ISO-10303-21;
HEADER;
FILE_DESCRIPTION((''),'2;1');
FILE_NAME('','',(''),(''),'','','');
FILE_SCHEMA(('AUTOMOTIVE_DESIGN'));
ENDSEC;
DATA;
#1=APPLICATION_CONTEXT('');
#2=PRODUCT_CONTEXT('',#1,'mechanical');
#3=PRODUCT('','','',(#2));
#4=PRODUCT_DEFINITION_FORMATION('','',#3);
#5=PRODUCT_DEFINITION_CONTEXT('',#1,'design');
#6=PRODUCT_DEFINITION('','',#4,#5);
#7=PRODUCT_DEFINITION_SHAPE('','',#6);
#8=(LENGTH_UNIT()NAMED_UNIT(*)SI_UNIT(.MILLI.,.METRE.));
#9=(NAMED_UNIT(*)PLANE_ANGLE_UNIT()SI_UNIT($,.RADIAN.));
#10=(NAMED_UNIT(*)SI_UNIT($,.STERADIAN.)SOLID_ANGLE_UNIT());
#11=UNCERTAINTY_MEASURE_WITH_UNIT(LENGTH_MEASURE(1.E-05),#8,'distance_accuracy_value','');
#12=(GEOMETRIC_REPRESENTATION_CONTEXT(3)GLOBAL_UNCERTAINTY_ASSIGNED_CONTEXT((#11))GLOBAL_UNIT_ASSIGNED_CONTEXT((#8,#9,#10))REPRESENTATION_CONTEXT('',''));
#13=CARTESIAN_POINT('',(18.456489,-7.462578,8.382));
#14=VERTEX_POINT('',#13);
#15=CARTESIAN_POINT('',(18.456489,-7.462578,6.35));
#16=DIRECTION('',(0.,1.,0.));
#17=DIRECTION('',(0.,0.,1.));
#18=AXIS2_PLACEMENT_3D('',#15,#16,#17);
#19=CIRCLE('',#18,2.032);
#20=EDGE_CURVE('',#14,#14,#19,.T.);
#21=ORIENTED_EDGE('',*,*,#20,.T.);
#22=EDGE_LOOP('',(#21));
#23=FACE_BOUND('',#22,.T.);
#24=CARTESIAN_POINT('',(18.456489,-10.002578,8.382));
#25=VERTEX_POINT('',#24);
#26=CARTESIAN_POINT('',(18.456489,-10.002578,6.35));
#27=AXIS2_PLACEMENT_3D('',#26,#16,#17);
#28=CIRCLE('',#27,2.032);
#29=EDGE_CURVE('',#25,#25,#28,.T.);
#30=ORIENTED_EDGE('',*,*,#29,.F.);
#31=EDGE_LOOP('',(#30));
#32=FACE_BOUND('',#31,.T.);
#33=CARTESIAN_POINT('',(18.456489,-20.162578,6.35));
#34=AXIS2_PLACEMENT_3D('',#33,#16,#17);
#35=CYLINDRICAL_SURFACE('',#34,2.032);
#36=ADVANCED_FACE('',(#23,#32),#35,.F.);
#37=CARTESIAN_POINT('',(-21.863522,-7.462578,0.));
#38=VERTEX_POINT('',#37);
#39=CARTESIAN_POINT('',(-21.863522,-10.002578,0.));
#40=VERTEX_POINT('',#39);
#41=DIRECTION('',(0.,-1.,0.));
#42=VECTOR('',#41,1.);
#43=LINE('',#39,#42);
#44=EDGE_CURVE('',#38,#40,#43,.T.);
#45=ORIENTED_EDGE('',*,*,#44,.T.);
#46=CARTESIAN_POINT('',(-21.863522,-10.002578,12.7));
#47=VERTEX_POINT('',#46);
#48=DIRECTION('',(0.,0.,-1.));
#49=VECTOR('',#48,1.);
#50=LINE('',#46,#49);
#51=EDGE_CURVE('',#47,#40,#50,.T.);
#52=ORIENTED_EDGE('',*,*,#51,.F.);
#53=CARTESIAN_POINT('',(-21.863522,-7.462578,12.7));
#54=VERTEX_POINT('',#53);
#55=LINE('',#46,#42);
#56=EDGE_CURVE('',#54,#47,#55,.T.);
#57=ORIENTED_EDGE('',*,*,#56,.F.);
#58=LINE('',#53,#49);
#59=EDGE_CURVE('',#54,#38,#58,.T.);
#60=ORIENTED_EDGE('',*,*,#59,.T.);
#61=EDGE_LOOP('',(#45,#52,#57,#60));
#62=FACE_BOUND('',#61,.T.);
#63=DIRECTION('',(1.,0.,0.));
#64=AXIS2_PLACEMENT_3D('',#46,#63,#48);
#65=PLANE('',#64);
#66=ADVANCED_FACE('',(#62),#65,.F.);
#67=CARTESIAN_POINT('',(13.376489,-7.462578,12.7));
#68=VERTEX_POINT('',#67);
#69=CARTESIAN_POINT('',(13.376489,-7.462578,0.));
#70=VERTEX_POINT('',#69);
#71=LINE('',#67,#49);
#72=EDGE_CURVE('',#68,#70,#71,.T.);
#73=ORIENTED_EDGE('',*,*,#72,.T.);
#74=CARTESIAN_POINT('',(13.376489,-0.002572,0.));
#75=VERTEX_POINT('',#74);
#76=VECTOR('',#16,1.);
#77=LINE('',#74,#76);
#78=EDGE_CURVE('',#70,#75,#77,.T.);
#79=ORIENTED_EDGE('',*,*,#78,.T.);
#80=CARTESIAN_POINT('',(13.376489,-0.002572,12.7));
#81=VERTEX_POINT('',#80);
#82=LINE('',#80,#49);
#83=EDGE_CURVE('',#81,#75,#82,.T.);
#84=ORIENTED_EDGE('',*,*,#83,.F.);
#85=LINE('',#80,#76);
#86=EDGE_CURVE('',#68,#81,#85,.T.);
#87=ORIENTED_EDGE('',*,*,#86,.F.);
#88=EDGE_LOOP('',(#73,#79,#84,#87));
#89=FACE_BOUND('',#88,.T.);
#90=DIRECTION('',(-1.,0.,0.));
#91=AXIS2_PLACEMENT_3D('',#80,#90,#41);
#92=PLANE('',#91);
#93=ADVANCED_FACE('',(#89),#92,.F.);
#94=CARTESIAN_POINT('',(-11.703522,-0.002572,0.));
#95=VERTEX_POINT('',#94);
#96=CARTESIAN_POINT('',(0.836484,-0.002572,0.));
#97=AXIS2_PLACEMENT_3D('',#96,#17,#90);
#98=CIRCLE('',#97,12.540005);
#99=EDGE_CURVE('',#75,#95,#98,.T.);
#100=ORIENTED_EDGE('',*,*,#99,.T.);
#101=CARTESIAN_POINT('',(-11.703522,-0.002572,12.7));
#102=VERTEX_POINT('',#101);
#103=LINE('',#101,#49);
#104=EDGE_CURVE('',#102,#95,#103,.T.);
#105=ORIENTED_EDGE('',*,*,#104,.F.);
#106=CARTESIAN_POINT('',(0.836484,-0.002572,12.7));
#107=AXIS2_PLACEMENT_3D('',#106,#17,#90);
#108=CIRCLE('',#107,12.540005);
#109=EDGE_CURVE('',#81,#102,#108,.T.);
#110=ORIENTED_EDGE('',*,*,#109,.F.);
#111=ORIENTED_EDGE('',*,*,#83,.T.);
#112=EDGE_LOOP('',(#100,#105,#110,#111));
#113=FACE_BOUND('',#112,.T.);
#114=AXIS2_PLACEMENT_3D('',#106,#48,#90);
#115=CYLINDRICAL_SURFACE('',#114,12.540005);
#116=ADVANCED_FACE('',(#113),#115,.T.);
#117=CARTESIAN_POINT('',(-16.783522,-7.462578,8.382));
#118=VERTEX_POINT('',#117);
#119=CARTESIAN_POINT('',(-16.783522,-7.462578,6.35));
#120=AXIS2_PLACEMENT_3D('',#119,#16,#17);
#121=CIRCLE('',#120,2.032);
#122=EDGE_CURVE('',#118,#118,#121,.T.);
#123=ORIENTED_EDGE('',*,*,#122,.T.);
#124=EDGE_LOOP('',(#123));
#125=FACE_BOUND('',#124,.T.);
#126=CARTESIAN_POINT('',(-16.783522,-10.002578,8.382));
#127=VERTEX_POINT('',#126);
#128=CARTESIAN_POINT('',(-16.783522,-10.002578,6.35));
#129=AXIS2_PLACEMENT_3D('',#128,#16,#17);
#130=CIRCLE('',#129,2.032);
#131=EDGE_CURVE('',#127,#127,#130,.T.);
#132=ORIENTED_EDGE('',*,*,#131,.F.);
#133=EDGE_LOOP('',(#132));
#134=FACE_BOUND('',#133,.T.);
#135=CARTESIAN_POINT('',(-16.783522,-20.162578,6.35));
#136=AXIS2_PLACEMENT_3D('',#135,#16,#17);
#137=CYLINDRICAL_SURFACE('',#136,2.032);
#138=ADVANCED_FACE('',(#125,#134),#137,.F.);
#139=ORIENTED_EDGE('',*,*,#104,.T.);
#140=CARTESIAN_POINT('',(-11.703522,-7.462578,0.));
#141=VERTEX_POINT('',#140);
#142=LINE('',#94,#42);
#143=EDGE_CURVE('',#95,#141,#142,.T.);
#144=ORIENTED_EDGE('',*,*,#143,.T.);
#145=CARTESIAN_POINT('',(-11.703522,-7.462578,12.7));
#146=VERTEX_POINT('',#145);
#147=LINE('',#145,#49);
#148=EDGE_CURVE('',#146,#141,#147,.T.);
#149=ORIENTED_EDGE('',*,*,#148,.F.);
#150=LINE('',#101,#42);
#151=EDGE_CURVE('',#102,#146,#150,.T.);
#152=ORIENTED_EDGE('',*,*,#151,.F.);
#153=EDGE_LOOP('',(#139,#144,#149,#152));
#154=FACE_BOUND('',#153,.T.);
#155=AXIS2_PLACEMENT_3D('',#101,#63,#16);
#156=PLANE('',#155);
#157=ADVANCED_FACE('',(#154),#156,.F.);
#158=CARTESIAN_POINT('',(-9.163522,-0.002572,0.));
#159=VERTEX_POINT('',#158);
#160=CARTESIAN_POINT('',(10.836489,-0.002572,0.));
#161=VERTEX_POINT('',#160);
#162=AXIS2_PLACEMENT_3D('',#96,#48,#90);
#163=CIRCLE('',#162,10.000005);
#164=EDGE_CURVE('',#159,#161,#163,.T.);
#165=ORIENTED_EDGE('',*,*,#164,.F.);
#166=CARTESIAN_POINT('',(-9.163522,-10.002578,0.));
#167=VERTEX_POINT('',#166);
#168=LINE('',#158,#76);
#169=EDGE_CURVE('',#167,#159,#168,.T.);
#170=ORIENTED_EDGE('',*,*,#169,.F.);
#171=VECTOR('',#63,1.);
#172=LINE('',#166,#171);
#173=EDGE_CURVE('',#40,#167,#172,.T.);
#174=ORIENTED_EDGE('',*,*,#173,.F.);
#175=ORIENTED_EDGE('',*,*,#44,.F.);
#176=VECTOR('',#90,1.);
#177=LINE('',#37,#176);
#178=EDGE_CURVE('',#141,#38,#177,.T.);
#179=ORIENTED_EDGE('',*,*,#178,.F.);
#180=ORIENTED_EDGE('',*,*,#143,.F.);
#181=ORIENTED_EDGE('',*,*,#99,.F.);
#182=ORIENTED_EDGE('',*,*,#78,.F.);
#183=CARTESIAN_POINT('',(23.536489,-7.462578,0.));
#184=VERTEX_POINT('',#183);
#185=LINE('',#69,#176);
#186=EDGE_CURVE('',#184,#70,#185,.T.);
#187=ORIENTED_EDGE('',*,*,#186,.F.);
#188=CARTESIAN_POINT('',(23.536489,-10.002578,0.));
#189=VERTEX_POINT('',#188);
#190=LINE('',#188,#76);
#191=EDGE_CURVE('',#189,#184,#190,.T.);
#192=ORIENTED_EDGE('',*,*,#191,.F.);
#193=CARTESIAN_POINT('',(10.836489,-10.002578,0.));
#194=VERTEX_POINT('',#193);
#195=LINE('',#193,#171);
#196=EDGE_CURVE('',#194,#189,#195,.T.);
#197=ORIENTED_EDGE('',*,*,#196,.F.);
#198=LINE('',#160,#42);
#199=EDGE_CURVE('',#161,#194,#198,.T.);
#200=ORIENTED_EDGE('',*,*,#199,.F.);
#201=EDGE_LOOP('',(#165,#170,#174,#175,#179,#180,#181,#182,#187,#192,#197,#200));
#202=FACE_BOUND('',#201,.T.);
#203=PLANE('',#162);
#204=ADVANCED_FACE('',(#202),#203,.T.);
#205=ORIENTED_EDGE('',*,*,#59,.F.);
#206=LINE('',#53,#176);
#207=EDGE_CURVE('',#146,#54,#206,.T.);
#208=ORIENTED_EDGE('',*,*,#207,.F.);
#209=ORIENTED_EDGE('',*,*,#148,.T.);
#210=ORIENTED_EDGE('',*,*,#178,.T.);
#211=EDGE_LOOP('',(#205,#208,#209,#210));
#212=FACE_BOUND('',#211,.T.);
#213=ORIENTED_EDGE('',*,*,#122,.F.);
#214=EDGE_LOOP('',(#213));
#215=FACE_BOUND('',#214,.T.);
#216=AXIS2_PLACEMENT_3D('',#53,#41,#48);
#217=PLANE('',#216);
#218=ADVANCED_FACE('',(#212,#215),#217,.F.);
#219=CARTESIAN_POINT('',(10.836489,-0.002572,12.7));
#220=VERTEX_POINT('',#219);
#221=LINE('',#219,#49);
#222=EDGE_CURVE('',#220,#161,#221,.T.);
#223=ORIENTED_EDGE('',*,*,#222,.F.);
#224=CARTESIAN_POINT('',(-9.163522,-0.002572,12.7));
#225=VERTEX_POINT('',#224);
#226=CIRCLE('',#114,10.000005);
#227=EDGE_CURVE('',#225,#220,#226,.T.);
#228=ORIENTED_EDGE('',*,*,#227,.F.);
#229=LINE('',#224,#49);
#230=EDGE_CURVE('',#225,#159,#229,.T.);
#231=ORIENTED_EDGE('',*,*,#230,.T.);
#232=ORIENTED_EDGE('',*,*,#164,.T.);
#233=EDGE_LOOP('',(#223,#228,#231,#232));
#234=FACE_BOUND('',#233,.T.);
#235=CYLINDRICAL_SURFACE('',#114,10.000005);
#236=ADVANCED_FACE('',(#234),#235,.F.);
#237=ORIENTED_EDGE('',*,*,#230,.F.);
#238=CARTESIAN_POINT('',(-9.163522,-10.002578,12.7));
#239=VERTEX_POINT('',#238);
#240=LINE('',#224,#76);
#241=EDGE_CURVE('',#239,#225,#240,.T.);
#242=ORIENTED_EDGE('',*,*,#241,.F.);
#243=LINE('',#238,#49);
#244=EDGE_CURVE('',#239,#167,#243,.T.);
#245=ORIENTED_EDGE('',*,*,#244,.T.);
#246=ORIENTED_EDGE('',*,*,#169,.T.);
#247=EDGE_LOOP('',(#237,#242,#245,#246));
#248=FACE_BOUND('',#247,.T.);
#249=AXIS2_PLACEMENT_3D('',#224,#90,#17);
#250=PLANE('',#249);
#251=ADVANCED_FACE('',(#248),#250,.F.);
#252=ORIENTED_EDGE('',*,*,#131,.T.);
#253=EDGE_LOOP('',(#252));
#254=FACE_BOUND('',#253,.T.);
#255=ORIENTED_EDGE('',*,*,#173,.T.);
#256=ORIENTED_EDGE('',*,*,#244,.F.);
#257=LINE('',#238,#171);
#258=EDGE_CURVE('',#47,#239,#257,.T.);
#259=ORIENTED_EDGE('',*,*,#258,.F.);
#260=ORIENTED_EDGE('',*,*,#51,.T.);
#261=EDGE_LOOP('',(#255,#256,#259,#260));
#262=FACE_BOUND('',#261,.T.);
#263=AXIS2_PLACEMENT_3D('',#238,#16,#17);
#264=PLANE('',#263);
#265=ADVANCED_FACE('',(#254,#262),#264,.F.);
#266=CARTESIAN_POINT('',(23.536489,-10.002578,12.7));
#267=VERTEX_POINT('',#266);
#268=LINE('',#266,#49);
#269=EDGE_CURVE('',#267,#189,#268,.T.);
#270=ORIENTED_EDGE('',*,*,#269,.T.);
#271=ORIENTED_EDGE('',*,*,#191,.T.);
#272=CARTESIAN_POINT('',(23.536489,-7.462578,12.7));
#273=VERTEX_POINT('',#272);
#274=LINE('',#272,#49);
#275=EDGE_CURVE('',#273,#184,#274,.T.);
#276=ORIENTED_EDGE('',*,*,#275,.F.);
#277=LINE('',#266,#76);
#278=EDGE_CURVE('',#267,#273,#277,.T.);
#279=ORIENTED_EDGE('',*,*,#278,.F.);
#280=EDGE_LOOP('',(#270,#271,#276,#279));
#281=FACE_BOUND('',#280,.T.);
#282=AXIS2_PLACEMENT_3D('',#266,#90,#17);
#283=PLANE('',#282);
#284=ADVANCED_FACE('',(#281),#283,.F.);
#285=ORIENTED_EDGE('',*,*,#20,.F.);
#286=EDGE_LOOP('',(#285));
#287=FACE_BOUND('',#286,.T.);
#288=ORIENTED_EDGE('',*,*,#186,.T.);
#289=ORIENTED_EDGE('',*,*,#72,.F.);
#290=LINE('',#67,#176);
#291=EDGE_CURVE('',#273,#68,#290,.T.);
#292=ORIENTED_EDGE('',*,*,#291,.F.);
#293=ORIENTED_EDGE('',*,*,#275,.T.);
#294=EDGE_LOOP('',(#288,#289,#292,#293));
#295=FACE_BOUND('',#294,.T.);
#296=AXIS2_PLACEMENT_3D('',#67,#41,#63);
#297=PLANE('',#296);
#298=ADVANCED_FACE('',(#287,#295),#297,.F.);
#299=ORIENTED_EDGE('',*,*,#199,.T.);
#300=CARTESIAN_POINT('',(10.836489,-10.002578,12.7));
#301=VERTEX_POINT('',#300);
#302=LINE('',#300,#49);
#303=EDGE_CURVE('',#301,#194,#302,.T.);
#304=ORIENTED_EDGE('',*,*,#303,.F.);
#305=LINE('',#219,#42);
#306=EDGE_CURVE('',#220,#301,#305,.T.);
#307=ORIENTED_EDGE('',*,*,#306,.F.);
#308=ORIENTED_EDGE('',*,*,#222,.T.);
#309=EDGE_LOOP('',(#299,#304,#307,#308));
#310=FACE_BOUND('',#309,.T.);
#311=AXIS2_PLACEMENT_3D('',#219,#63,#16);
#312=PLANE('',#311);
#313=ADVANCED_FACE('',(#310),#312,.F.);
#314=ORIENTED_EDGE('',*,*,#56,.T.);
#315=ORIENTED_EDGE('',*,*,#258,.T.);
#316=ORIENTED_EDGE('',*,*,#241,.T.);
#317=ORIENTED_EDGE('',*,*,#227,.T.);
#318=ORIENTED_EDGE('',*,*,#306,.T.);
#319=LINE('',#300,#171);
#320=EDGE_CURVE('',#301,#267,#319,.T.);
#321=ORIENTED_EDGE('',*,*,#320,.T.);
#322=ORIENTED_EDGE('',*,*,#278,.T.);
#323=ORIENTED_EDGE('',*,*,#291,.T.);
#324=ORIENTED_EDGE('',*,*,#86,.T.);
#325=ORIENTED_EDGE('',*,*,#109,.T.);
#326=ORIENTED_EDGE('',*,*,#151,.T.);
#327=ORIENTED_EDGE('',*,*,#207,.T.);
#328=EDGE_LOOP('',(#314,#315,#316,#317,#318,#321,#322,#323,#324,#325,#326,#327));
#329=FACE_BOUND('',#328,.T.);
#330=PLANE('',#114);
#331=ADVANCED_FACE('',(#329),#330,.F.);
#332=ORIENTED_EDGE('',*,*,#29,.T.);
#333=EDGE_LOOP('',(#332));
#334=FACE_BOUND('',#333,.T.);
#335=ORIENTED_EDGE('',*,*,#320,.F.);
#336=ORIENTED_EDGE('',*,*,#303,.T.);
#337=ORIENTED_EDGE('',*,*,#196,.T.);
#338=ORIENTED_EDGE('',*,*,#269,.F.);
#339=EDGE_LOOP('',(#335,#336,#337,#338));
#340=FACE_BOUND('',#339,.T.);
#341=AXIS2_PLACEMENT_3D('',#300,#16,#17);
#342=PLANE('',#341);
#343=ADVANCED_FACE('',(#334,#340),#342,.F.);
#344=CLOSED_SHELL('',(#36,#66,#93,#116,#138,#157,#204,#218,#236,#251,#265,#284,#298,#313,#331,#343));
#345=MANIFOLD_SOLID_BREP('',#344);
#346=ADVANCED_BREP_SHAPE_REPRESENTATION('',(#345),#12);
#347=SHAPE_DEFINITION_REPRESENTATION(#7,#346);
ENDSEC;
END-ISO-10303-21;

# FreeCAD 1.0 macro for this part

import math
import FreeCAD as App
import Part
import Sketcher
Q = App.Units.Quantity

doc = App.newDocument("Part")
body = doc.addObject("PartDesign::Body", "Body")

# Sketch on XY plane
sketch1 = body.newObject("Sketcher::SketchObject", "Sketch")
sketch1.AttachmentSupport = (doc.getObject("XY_Plane"), [""])
sketch1.MapMode = "FlatFace"
sketch1.addGeometry([
    Part.LineSegment(App.Vector(-9.163522, -10.002578, 0), App.Vector(-9.163522, -0.002572, 0)),  # 0
    Part.ArcOfCircle(Part.Circle(App.Vector(0.836484, -0.002572, 0), App.Vector(0, 0, 1), 10.000005), math.radians(0), math.radians(180)),  # 1
    Part.LineSegment(App.Vector(10.836489, -0.002572, 0), App.Vector(10.836489, -10.002578, 0)),  # 2
    Part.LineSegment(App.Vector(10.836489, -10.002578, 0), App.Vector(23.536489, -10.002578, 0)),  # 3
    Part.LineSegment(App.Vector(23.536489, -10.002578, 0), App.Vector(23.536489, -7.462578, 0)),  # 4
    Part.LineSegment(App.Vector(23.536489, -7.462578, 0), App.Vector(13.376489, -7.462578, 0)),  # 5
    Part.LineSegment(App.Vector(13.376489, -7.462578, 0), App.Vector(13.376489, -0.002572, 0)),  # 6
    Part.ArcOfCircle(Part.Circle(App.Vector(0.836484, -0.002572, 0), App.Vector(0, 0, 1), 12.540005), math.radians(0), math.radians(180)),  # 7
    Part.LineSegment(App.Vector(-11.703522, -0.002572, 0), App.Vector(-11.703522, -7.462578, 0)),  # 8
    Part.LineSegment(App.Vector(-11.703522, -7.462578, 0), App.Vector(-21.863522, -7.462578, 0)),  # 9
    Part.LineSegment(App.Vector(-21.863522, -7.462578, 0), App.Vector(-21.863522, -10.002578, 0)),  # 10
    Part.LineSegment(App.Vector(-21.863522, -10.002578, 0), App.Vector(-9.163522, -10.002578, 0)),  # 11
], False)
sketch1.addConstraint([
    Sketcher.Constraint("Tangent", 0, 2, 1, 2),
    Sketcher.Constraint("Tangent", 1, 1, 2, 1),
    Sketcher.Constraint("Coincident", 2, 2, 3, 1),
    Sketcher.Constraint("Coincident", 3, 2, 4, 1),
    Sketcher.Constraint("Coincident", 4, 2, 5, 1),
    Sketcher.Constraint("Coincident", 5, 2, 6, 1),
    Sketcher.Constraint("Tangent", 6, 2, 7, 1),
    Sketcher.Constraint("Tangent", 7, 2, 8, 1),
    Sketcher.Constraint("Coincident", 8, 2, 9, 1),
    Sketcher.Constraint("Coincident", 9, 2, 10, 1),
    Sketcher.Constraint("Coincident", 10, 2, 11, 1),
    Sketcher.Constraint("Coincident", 11, 2, 0, 1),
    Sketcher.Constraint("Vertical", 0),
    Sketcher.Constraint("Vertical", 2),
    Sketcher.Constraint("Horizontal", 3),
    Sketcher.Constraint("Vertical", 4),
    Sketcher.Constraint("Horizontal", 5),
    Sketcher.Constraint("Vertical", 6),
    Sketcher.Constraint("Vertical", 8),
    Sketcher.Constraint("Horizontal", 9),
    Sketcher.Constraint("Vertical", 10),
    Sketcher.Constraint("Horizontal", 11),
    Sketcher.Constraint("Coincident", 7, 3, 1, 3),
    Sketcher.Constraint("Horizontal", 5, 2, 8, 2),
    Sketcher.Constraint("Horizontal", 3, 2, 10, 2),
    Sketcher.Constraint("Equal", 5, 9),
    Sketcher.Constraint("DistanceX", 3, 1, 3, 2, Q("0.5 in")),
    Sketcher.Constraint("DistanceX", 5, 2, 5, 1, Q("0.4 in")),
    Sketcher.Constraint("DistanceY", 4, 1, 4, 2, Q("0.1 in")),
    Sketcher.Constraint("Radius", 1, Q("10.000005 mm")),
    Sketcher.Constraint("DistanceY", 0, 1, 0, 2, Q("10.000005 mm")),
    Sketcher.Constraint("DistanceX", 0, 2, -1, 1, Q("9.163522 mm")),
    Sketcher.Constraint("DistanceY", 1, 3, -1, 1, Q("0.002572 mm")),
])
pad1 = body.newObject("PartDesign::Pad", "Pad")
pad1.Profile = sketch1
pad1.Length = Q("0.5 in")

# Sketch on XZ plane
sketch2 = body.newObject("Sketcher::SketchObject", "Sketch001")
sketch2.AttachmentSupport = (doc.getObject("XZ_Plane"), [""])
sketch2.MapMode = "FlatFace"
sketch2.AttachmentOffset = App.Placement(App.Vector(0, 0, 7.462578), App.Rotation())
sketch2.addGeometry([
    Part.Circle(App.Vector(-16.783522, 6.35, 0), App.Vector(0, 0, 1), 2.032),
    Part.Circle(App.Vector(18.456489, 6.35, 0), App.Vector(0, 0, 1), 2.032),
], False)
sketch2.addConstraint([
    Sketcher.Constraint("Equal", 0, 1),
    Sketcher.Constraint("Horizontal", 0, 3, 1, 3),
    Sketcher.Constraint("Diameter", 0, Q("0.16 in")),
    Sketcher.Constraint("DistanceY", -1, 1, 0, 3, Q("0.25 in")),
    Sketcher.Constraint("DistanceX", 0, 3, -1, 1, Q("16.783522 mm")),
    Sketcher.Constraint("DistanceX", -1, 1, 1, 3, Q("18.456489 mm")),
])
pocket1 = body.newObject("PartDesign::Pocket", "Pocket")
pocket1.Profile = sketch2
pocket1.Length = Q("0.5 in")
pocket1.Reversed = True

doc.recompute()
